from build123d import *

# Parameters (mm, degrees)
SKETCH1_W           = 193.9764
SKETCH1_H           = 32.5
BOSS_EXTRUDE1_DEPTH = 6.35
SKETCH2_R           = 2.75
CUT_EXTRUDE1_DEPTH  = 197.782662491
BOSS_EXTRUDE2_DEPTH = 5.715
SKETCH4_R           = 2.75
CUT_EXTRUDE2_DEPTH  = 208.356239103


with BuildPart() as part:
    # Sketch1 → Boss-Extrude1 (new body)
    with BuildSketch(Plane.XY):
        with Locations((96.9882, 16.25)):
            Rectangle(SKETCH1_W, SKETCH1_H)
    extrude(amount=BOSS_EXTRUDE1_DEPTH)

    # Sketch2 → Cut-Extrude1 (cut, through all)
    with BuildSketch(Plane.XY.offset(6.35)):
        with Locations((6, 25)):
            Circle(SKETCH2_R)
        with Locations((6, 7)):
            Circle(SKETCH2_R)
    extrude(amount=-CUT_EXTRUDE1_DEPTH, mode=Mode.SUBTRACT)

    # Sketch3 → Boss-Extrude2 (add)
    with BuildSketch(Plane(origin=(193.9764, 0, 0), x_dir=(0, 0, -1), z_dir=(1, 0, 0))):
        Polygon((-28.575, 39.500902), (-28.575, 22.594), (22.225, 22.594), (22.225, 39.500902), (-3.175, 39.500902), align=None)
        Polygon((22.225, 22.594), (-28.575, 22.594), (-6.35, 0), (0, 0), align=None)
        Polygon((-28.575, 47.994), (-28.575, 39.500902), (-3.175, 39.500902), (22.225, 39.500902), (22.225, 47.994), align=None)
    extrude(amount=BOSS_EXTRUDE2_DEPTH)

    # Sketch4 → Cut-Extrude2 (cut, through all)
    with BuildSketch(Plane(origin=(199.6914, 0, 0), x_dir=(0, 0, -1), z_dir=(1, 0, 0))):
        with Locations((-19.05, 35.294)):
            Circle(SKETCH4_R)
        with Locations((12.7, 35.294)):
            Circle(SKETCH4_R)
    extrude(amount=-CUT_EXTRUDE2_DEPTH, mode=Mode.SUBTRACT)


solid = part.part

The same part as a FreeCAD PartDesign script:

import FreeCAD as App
import Part
import Sketcher

V = App.Vector
Q = App.Units.Quantity

doc = App.newDocument("Part")
body = doc.addObject("PartDesign::Body", "Body")

# Sketch on XY plane
sketch1 = body.newObject("Sketcher::SketchObject", "Sketch")
sketch1.AttachmentSupport = (doc.getObject("XY_Plane"), [""])
sketch1.MapMode = "FlatFace"
sketch1.addGeometry(Part.LineSegment(V(0, 32, 0), V(0, 0, 0)), False)
sketch1.addGeometry(Part.LineSegment(V(0, 0, 0), V(194, 0, 0)), False)
sketch1.addGeometry(Part.LineSegment(V(194, 0, 0), V(194, 32, 0)), False)
sketch1.addGeometry(Part.LineSegment(V(194, 32, 0), V(0, 32, 0)), False)
sketch1.addConstraint(Sketcher.Constraint("Coincident", 0, 2, 1, 1))
sketch1.addConstraint(Sketcher.Constraint("Coincident", 1, 2, 2, 1))
sketch1.addConstraint(Sketcher.Constraint("Coincident", 2, 2, 3, 1))
sketch1.addConstraint(Sketcher.Constraint("Coincident", 3, 2, 0, 1))
sketch1.addConstraint(Sketcher.Constraint("Vertical", 0))
sketch1.addConstraint(Sketcher.Constraint("Horizontal", 1))
sketch1.addConstraint(Sketcher.Constraint("Vertical", 2))
sketch1.addConstraint(Sketcher.Constraint("Horizontal", 3))
sketch1.addConstraint(Sketcher.Constraint("Coincident", 0, 2, -1, 1))
sketch1.addConstraint(Sketcher.Constraint("DistanceX", 1, 1, 1, 2, Q("193.9764 mm")))
sketch1.addConstraint(Sketcher.Constraint("DistanceY", 0, 2, 0, 1, Q("32.5 mm")))
pad1 = body.newObject("PartDesign::Pad", "Pad")
pad1.Profile = sketch1
pad1.Length = Q("0.25 in")

# Sketch on XY plane
sketch2 = body.newObject("Sketcher::SketchObject", "Sketch001")
sketch2.AttachmentSupport = (doc.getObject("XY_Plane"), [""])
sketch2.MapMode = "FlatFace"
sketch2.AttachmentOffset = App.Placement(V(0, 0, 0.25 * 25.4), App.Rotation())
sketch2.addGeometry(Part.Circle(V(6, 25, 0), V(0, 0, 1), 2.8), False)
sketch2.addGeometry(Part.Circle(V(6, 7, 0), V(0, 0, 1), 2.8), False)
sketch2.addConstraint(Sketcher.Constraint("Equal", 0, 1))
sketch2.addConstraint(Sketcher.Constraint("Vertical", 0, 3, 1, 3))
sketch2.addConstraint(Sketcher.Constraint("Diameter", 0, Q("5.5 mm")))
sketch2.addConstraint(Sketcher.Constraint("DistanceX", -1, 1, 0, 3, Q("6 mm")))
sketch2.addConstraint(Sketcher.Constraint("DistanceY", -1, 1, 0, 3, Q("25 mm")))
sketch2.addConstraint(Sketcher.Constraint("DistanceY", -1, 1, 1, 3, Q("7 mm")))
pocket1 = body.newObject("PartDesign::Pocket", "Pocket")
pocket1.Profile = sketch2
pocket1.Type = "ThroughAll"

# Sketch on YZ plane
sketch3 = body.newObject("Sketcher::SketchObject", "Sketch002")
sketch3.AttachmentSupport = (doc.getObject("YZ_Plane"), [""])
sketch3.MapMode = "FlatFace"
sketch3.AttachmentOffset = App.Placement(V(0, 0, 193.9764), App.Rotation())
sketch3.addGeometry(Part.LineSegment(V(23, 29, 0), V(0, 6, 0)), False)
sketch3.addGeometry(Part.LineSegment(V(0, 6, 0), V(0, 0, 0)), False)
sketch3.addGeometry(Part.LineSegment(V(0, 0, 0), V(23, -22, 0)), False)
sketch3.addGeometry(Part.LineSegment(V(23, -22, 0), V(48, -22, 0)), False)
sketch3.addGeometry(Part.LineSegment(V(48, -22, 0), V(48, 29, 0)), False)
sketch3.addGeometry(Part.LineSegment(V(48, 29, 0), V(23, 29, 0)), False)
sketch3.addConstraint(Sketcher.Constraint("Coincident", 0, 2, 1, 1))
sketch3.addConstraint(Sketcher.Constraint("Coincident", 1, 2, 2, 1))
sketch3.addConstraint(Sketcher.Constraint("Coincident", 2, 2, 3, 1))
sketch3.addConstraint(Sketcher.Constraint("Coincident", 3, 2, 4, 1))
sketch3.addConstraint(Sketcher.Constraint("Coincident", 4, 2, 5, 1))
sketch3.addConstraint(Sketcher.Constraint("Coincident", 5, 2, 0, 1))
sketch3.addConstraint(Sketcher.Constraint("Vertical", 1))
sketch3.addConstraint(Sketcher.Constraint("Horizontal", 3))
sketch3.addConstraint(Sketcher.Constraint("Vertical", 4))
sketch3.addConstraint(Sketcher.Constraint("Horizontal", 5))
sketch3.addConstraint(Sketcher.Constraint("Coincident", 1, 2, -1, 1))
sketch3.addConstraint(Sketcher.Constraint("Vertical", 2, 2, 5, 2))
sketch3.addConstraint(Sketcher.Constraint("Equal", 0, 2))
sketch3.addConstraint(Sketcher.Constraint("DistanceX", 3, 1, 3, 2, Q("1 in")))
sketch3.addConstraint(Sketcher.Constraint("DistanceY", 4, 1, 4, 2, Q("2 in")))
sketch3.addConstraint(Sketcher.Constraint("DistanceY", 1, 2, 1, 1, Q("0.25 in")))
sketch3.addConstraint(Sketcher.Constraint("DistanceX", -1, 1, 2, 2, Q("22.594 mm")))
pad2 = body.newObject("PartDesign::Pad", "Pad001")
pad2.Profile = sketch3
pad2.Length = Q("0.225 in")

# Sketch on YZ plane
sketch4 = body.newObject("Sketcher::SketchObject", "Sketch003")
sketch4.AttachmentSupport = (doc.getObject("YZ_Plane"), [""])
sketch4.MapMode = "FlatFace"
sketch4.AttachmentOffset = App.Placement(V(0, 0, 199.6914), App.Rotation())
sketch4.addGeometry(Part.Circle(V(35.3, 19.1, 0), V(0, 0, 1), 2.8), False)
sketch4.addGeometry(Part.Circle(V(35.3, -12.7, 0), V(0, 0, 1), 2.8), False)
sketch4.addConstraint(Sketcher.Constraint("Equal", 0, 1))
sketch4.addConstraint(Sketcher.Constraint("Vertical", 0, 3, 1, 3))
sketch4.addConstraint(Sketcher.Constraint("DistanceY", 1, 3, -1, 1, Q("0.5 in")))
sketch4.addConstraint(Sketcher.Constraint("Diameter", 0, Q("5.5 mm")))
sketch4.addConstraint(Sketcher.Constraint("DistanceY", -1, 1, 0, 3, Q("0.75 in")))
sketch4.addConstraint(Sketcher.Constraint("DistanceX", -1, 1, 0, 3, Q("35.294 mm")))
pocket2 = body.newObject("PartDesign::Pocket", "Pocket001")
pocket2.Profile = sketch4
pocket2.Type = "ThroughAll"

doc.recompute()
